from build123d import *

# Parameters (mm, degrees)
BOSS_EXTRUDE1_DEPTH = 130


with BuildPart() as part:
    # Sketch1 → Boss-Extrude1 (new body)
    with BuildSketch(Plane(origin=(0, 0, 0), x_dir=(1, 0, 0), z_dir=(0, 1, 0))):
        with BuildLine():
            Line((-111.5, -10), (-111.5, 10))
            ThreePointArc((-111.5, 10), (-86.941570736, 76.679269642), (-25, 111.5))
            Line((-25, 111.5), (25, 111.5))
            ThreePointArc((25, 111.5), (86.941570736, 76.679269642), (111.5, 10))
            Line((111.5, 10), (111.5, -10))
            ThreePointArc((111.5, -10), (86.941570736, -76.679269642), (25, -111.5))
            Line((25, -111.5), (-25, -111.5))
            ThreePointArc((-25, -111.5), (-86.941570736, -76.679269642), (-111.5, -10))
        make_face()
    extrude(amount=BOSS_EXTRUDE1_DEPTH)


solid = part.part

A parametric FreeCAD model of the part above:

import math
import FreeCAD as App
import Part
import Sketcher

doc = App.newDocument("Part")
body = doc.addObject("PartDesign::Body", "Body")

# Sketch on XZ plane
sketch1 = body.newObject("Sketcher::SketchObject", "Sketch")
sketch1.AttachmentSupport = (doc.getObject("XZ_Plane"), [""])
sketch1.MapMode = "FlatFace"
sketch1.addGeometry(Part.LineSegment(App.Vector(-112, -10, 0), App.Vector(-112, 10, 0)), False)
sketch1.addGeometry(Part.ArcOfCircle(Part.Circle(App.Vector(-9, 10, 0), App.Vector(0, 0, 1), 103), math.radians(99), math.radians(180)), False)
sketch1.addGeometry(Part.LineSegment(App.Vector(-25, 112, 0), App.Vector(25, 112, 0)), False)
sketch1.addGeometry(Part.ArcOfCircle(Part.Circle(App.Vector(9, 10, 0), App.Vector(0, 0, 1), 103), math.radians(0), math.radians(81)), False)
sketch1.addGeometry(Part.LineSegment(App.Vector(112, 10, 0), App.Vector(112, -10, 0)), False)
sketch1.addGeometry(Part.ArcOfCircle(Part.Circle(App.Vector(9, -10, 0), App.Vector(0, 0, 1), 103), math.radians(-81), math.radians(0)), False)
sketch1.addGeometry(Part.LineSegment(App.Vector(25, -112, 0), App.Vector(-25, -112, 0)), False)
sketch1.addGeometry(Part.ArcOfCircle(Part.Circle(App.Vector(-9, -10, 0), App.Vector(0, 0, 1), 103), math.radians(180), math.radians(261)), False)
sketch1.addConstraint(Sketcher.Constraint("Tangent", 0, 2, 1, 2))
sketch1.addConstraint(Sketcher.Constraint("Coincident", 1, 1, 2, 1))
sketch1.addConstraint(Sketcher.Constraint("Coincident", 2, 2, 3, 2))
sketch1.addConstraint(Sketcher.Constraint("Tangent", 3, 1, 4, 1))
sketch1.addConstraint(Sketcher.Constraint("Tangent", 4, 2, 5, 2))
sketch1.addConstraint(Sketcher.Constraint("Coincident", 5, 1, 6, 1))
sketch1.addConstraint(Sketcher.Constraint("Coincident", 6, 2, 7, 2))
sketch1.addConstraint(Sketcher.Constraint("Tangent", 7, 1, 0, 1))
sketch1.addConstraint(Sketcher.Constraint("Vertical", 0))
sketch1.addConstraint(Sketcher.Constraint("Horizontal", 2))
sketch1.addConstraint(Sketcher.Constraint("Vertical", 4))
sketch1.addConstraint(Sketcher.Constraint("Horizontal", 6))
sketch1.addConstraint(Sketcher.Constraint("Equal", 1, 3))
sketch1.addConstraint(Sketcher.Constraint("Equal", 3, 5))
sketch1.addConstraint(Sketcher.Constraint("Equal", 5, 7))
sketch1.addConstraint(Sketcher.Constraint("Symmetric", 1, 3, 5, 3, -1, 1))
sketch1.addConstraint(Sketcher.Constraint("Symmetric", 2, 2, 6, 2, -1, 1))
sketch1.addConstraint(Sketcher.Constraint("Horizontal", 1, 3, 3, 3))
sketch1.addConstraint(Sketcher.Constraint("DistanceX", 2, 1, 2, 2, 50.0))
sketch1.addConstraint(Sketcher.Constraint("DistanceY", 0, 1, 0, 2, 20.0))
sketch1.addConstraint(Sketcher.Constraint("DistanceX", 0, 2, -1, 1, 111.5))
sketch1.addConstraint(Sketcher.Constraint("DistanceY", -1, 1, 1, 1, 111.5))
pad1 = body.newObject("PartDesign::Pad", "Pad")
pad1.Profile = sketch1
pad1.Length = 130
pad1.Reversed = True

doc.recompute()
